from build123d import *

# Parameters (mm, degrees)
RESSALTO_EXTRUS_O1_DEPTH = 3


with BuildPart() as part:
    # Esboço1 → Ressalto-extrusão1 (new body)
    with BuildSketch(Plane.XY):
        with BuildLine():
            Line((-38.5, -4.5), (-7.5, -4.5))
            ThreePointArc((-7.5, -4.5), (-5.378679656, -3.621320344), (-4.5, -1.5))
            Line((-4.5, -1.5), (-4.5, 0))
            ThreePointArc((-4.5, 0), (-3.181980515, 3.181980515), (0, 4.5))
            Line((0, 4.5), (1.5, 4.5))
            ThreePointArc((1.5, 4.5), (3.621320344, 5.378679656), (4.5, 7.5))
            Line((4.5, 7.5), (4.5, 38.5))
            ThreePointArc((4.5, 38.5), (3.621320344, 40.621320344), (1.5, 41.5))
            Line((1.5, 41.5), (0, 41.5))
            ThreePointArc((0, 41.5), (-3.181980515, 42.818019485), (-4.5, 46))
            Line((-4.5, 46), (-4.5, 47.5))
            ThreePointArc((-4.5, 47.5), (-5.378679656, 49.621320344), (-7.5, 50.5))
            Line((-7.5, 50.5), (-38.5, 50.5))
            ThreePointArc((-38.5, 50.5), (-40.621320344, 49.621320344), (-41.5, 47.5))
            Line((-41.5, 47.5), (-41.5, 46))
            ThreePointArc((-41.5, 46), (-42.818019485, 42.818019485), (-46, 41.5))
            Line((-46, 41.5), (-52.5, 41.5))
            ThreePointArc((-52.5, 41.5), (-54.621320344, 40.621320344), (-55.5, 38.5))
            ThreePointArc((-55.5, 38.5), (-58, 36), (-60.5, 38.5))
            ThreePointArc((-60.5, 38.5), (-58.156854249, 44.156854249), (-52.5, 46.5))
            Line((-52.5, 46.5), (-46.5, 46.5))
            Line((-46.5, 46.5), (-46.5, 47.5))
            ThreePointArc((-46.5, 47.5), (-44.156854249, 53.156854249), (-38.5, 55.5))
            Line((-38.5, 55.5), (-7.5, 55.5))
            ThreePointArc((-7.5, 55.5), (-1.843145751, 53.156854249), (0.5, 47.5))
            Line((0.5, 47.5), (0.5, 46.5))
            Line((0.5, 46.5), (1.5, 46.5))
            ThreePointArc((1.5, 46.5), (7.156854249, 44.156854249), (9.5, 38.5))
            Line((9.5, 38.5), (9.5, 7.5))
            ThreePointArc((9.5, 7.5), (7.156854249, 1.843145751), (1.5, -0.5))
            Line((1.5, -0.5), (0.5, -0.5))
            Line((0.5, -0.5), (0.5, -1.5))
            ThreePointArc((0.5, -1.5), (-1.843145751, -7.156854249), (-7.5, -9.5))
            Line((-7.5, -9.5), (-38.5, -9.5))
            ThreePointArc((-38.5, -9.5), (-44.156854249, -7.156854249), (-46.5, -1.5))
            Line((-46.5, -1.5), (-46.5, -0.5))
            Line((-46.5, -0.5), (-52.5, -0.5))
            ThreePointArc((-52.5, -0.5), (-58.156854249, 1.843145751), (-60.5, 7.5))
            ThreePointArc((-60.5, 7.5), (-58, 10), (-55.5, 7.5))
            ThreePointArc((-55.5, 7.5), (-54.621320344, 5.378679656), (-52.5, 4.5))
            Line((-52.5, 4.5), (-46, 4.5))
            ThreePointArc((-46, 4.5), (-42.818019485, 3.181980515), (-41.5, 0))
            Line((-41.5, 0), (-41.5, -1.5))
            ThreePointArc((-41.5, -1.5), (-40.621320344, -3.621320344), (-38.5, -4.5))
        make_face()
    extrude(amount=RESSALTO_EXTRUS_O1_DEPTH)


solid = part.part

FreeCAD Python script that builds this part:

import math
import FreeCAD as App
import Part
import Sketcher
from FreeCAD import Vector

doc = App.newDocument("Part")
body = doc.addObject("PartDesign::Body", "Body")

# Sketch on XY plane
sketch1 = body.newObject("Sketcher::SketchObject", "Sketch")
sketch1.AttachmentSupport = (doc.getObject("XY_Plane"), [""])
sketch1.MapMode = "FlatFace"
sketch1.addGeometry([
    Part.LineSegment(Vector(-7.5, -4.5, 0), Vector(-38.5, -4.5, 0)),  # 0
    Part.ArcOfCircle(Part.Circle(Vector(-38.5, -1.5, 0), Vector(0, 0, 1), 3), math.radians(180), math.radians(270)),  # 1
    Part.LineSegment(Vector(-41.5, -1.5, 0), Vector(-41.5, 0, 0)),  # 2
    Part.ArcOfCircle(Part.Circle(Vector(-46, 0, 0), Vector(0, 0, 1), 4.5), math.radians(0), math.radians(90)),  # 3
    Part.LineSegment(Vector(-46, 4.5, 0), Vector(-52.5, 4.5, 0)),  # 4
    Part.ArcOfCircle(Part.Circle(Vector(-52.5, 7.5, 0), Vector(0, 0, 1), 3), math.radians(180), math.radians(270)),  # 5
    Part.ArcOfCircle(Part.Circle(Vector(-58, 7.5, 0), Vector(0, 0, 1), 2.5), math.radians(0), math.radians(180)),  # 6
    Part.ArcOfCircle(Part.Circle(Vector(-52.5, 7.5, 0), Vector(0, 0, 1), 8), math.radians(-180), math.radians(-90)),  # 7
    Part.LineSegment(Vector(-52.5, -0.5, 0), Vector(-46.5, -0.5, 0)),  # 8
    Part.LineSegment(Vector(-46.5, -0.5, 0), Vector(-46.5, -1.5, 0)),  # 9
    Part.ArcOfCircle(Part.Circle(Vector(-38.5, -1.5, 0), Vector(0, 0, 1), 8), math.radians(-180), math.radians(-90)),  # 10
    Part.LineSegment(Vector(-38.5, -9.5, 0), Vector(-7.5, -9.5, 0)),  # 11
    Part.ArcOfCircle(Part.Circle(Vector(-7.5, -1.5, 0), Vector(0, 0, 1), 8), math.radians(-90), math.radians(0)),  # 12
    Part.LineSegment(Vector(0.5, -1.5, 0), Vector(0.5, -0.5, 0)),  # 13
    Part.LineSegment(Vector(0.5, -0.5, 0), Vector(1.5, -0.5, 0)),  # 14
    Part.ArcOfCircle(Part.Circle(Vector(1.5, 7.5, 0), Vector(0, 0, 1), 8), math.radians(-90), math.radians(0)),  # 15
    Part.LineSegment(Vector(9.5, 7.5, 0), Vector(9.5, 38.5, 0)),  # 16
    Part.ArcOfCircle(Part.Circle(Vector(1.5, 38.5, 0), Vector(0, 0, 1), 8), math.radians(0), math.radians(90)),  # 17
    Part.LineSegment(Vector(1.5, 46.5, 0), Vector(0.5, 46.5, 0)),  # 18
    Part.LineSegment(Vector(0.5, 46.5, 0), Vector(0.5, 47.5, 0)),  # 19
    Part.ArcOfCircle(Part.Circle(Vector(-7.5, 47.5, 0), Vector(0, 0, 1), 8), math.radians(0), math.radians(90)),  # 20
    Part.LineSegment(Vector(-7.5, 55.5, 0), Vector(-38.5, 55.5, 0)),  # 21
    Part.ArcOfCircle(Part.Circle(Vector(-38.5, 47.5, 0), Vector(0, 0, 1), 8), math.radians(90), math.radians(180)),  # 22
    Part.LineSegment(Vector(-46.5, 47.5, 0), Vector(-46.5, 46.5, 0)),  # 23
    Part.LineSegment(Vector(-46.5, 46.5, 0), Vector(-52.5, 46.5, 0)),  # 24
    Part.ArcOfCircle(Part.Circle(Vector(-52.5, 38.5, 0), Vector(0, 0, 1), 8), math.radians(90), math.radians(180)),  # 25
    Part.ArcOfCircle(Part.Circle(Vector(-58, 38.5, 0), Vector(0, 0, 1), 2.5), math.radians(180), math.radians(360)),  # 26
    Part.ArcOfCircle(Part.Circle(Vector(-52.5, 38.5, 0), Vector(0, 0, 1), 3), math.radians(90), math.radians(180)),  # 27
    Part.LineSegment(Vector(-52.5, 41.5, 0), Vector(-46, 41.5, 0)),  # 28
    Part.ArcOfCircle(Part.Circle(Vector(-46, 46, 0), Vector(0, 0, 1), 4.5), math.radians(-90), math.radians(0)),  # 29
    Part.LineSegment(Vector(-41.5, 46, 0), Vector(-41.5, 47.5, 0)),  # 30
    Part.ArcOfCircle(Part.Circle(Vector(-38.5, 47.5, 0), Vector(0, 0, 1), 3), math.radians(90), math.radians(180)),  # 31
    Part.LineSegment(Vector(-38.5, 50.5, 0), Vector(-7.5, 50.5, 0)),  # 32
    Part.ArcOfCircle(Part.Circle(Vector(-7.5, 47.5, 0), Vector(0, 0, 1), 3), math.radians(0), math.radians(90)),  # 33
    Part.LineSegment(Vector(-4.5, 47.5, 0), Vector(-4.5, 46, 0)),  # 34
    Part.ArcOfCircle(Part.Circle(Vector(0, 46, 0), Vector(0, 0, 1), 4.5), math.radians(-180), math.radians(-90)),  # 35
    Part.LineSegment(Vector(0, 41.5, 0), Vector(1.5, 41.5, 0)),  # 36
    Part.ArcOfCircle(Part.Circle(Vector(1.5, 38.5, 0), Vector(0, 0, 1), 3), math.radians(0), math.radians(90)),  # 37
    Part.LineSegment(Vector(4.5, 38.5, 0), Vector(4.5, 7.5, 0)),  # 38
    Part.ArcOfCircle(Part.Circle(Vector(1.5, 7.5, 0), Vector(0, 0, 1), 3), math.radians(-90), math.radians(0)),  # 39
    Part.LineSegment(Vector(1.5, 4.5, 0), Vector(0, 4.5, 0)),  # 40
    Part.ArcOfCircle(Part.Circle(Vector(0, 0, 0), Vector(0, 0, 1), 4.5), math.radians(90), math.radians(180)),  # 41
    Part.LineSegment(Vector(-4.5, 0, 0), Vector(-4.5, -1.5, 0)),  # 42
    Part.ArcOfCircle(Part.Circle(Vector(-7.5, -1.5, 0), Vector(0, 0, 1), 3), math.radians(-90), math.radians(0)),  # 43
], False)
sketch1.addConstraint([
    Sketcher.Constraint("Tangent", 0, 2, 1, 2),
    Sketcher.Constraint("Tangent", 1, 1, 2, 1),
    Sketcher.Constraint("Tangent", 2, 2, 3, 1),
    Sketcher.Constraint("Tangent", 3, 2, 4, 1),
    Sketcher.Constraint("Tangent", 4, 2, 5, 2),
    Sketcher.Constraint("Tangent", 5, 1, 6, 1),
    Sketcher.Constraint("Tangent", 6, 2, 7, 1),
    Sketcher.Constraint("Tangent", 7, 2, 8, 1),
    Sketcher.Constraint("Coincident", 8, 2, 9, 1),
    Sketcher.Constraint("Tangent", 9, 2, 10, 1),
    Sketcher.Constraint("Tangent", 10, 2, 11, 1),
    Sketcher.Constraint("Tangent", 11, 2, 12, 1),
    Sketcher.Constraint("Tangent", 12, 2, 13, 1),
    Sketcher.Constraint("Coincident", 13, 2, 14, 1),
    Sketcher.Constraint("Tangent", 14, 2, 15, 1),
    Sketcher.Constraint("Tangent", 15, 2, 16, 1),
    Sketcher.Constraint("Tangent", 16, 2, 17, 1),
    Sketcher.Constraint("Tangent", 17, 2, 18, 1),
    Sketcher.Constraint("Coincident", 18, 2, 19, 1),
    Sketcher.Constraint("Tangent", 19, 2, 20, 1),
    Sketcher.Constraint("Tangent", 20, 2, 21, 1),
    Sketcher.Constraint("Tangent", 21, 2, 22, 1),
    Sketcher.Constraint("Tangent", 22, 2, 23, 1),
    Sketcher.Constraint("Coincident", 23, 2, 24, 1),
    Sketcher.Constraint("Tangent", 24, 2, 25, 1),
    Sketcher.Constraint("Tangent", 25, 2, 26, 1),
    Sketcher.Constraint("Tangent", 26, 2, 27, 2),
    Sketcher.Constraint("Tangent", 27, 1, 28, 1),
    Sketcher.Constraint("Tangent", 28, 2, 29, 1),
    Sketcher.Constraint("Tangent", 29, 2, 30, 1),
    Sketcher.Constraint("Tangent", 30, 2, 31, 2),
    Sketcher.Constraint("Tangent", 31, 1, 32, 1),
    Sketcher.Constraint("Tangent", 32, 2, 33, 2),
    Sketcher.Constraint("Tangent", 33, 1, 34, 1),
    Sketcher.Constraint("Tangent", 34, 2, 35, 1),
    Sketcher.Constraint("Tangent", 35, 2, 36, 1),
    Sketcher.Constraint("Tangent", 36, 2, 37, 2),
    Sketcher.Constraint("Tangent", 37, 1, 38, 1),
    Sketcher.Constraint("Tangent", 38, 2, 39, 2),
    Sketcher.Constraint("Tangent", 39, 1, 40, 1),
    Sketcher.Constraint("Tangent", 40, 2, 41, 1),
    Sketcher.Constraint("Tangent", 41, 2, 42, 1),
    Sketcher.Constraint("Tangent", 42, 2, 43, 2),
    Sketcher.Constraint("Tangent", 43, 1, 0, 1),
    Sketcher.Constraint("Horizontal", 0),
    Sketcher.Constraint("Vertical", 2),
    Sketcher.Constraint("Horizontal", 4),
    Sketcher.Constraint("Horizontal", 8),
    Sketcher.Constraint("Vertical", 9),
    Sketcher.Constraint("Horizontal", 11),
    Sketcher.Constraint("Vertical", 13),
    Sketcher.Constraint("Horizontal", 14),
    Sketcher.Constraint("Vertical", 16),
    Sketcher.Constraint("Horizontal", 18),
    Sketcher.Constraint("Vertical", 19),
    Sketcher.Constraint("Horizontal", 21),
    Sketcher.Constraint("Vertical", 23),
    Sketcher.Constraint("Horizontal", 24),
    Sketcher.Constraint("Horizontal", 28),
    Sketcher.Constraint("Vertical", 30),
    Sketcher.Constraint("Horizontal", 32),
    Sketcher.Constraint("Vertical", 34),
    Sketcher.Constraint("Horizontal", 36),
    Sketcher.Constraint("Vertical", 38),
    Sketcher.Constraint("Horizontal", 40),
    Sketcher.Constraint("Vertical", 42),
    Sketcher.Constraint("Coincident", 41, 3, -1, 1),
    Sketcher.Constraint("Coincident", 7, 3, 5, 3),
    Sketcher.Constraint("Coincident", 10, 3, 1, 3),
    Sketcher.Constraint("Coincident", 27, 3, 25, 3),
    Sketcher.Constraint("Coincident", 31, 3, 22, 3),
    Sketcher.Constraint("Coincident", 33, 3, 20, 3),
    Sketcher.Constraint("Coincident", 37, 3, 17, 3),
    Sketcher.Constraint("Coincident", 39, 3, 15, 3),
    Sketcher.Constraint("Coincident", 43, 3, 12, 3),
    Sketcher.Constraint("Equal", 1, 5),
    Sketcher.Constraint("Equal", 7, 10),
    Sketcher.Constraint("Equal", 10, 12),
    Sketcher.Constraint("Equal", 12, 15),
    Sketcher.Constraint("Equal", 15, 17),
    Sketcher.Constraint("Equal", 17, 20),
    Sketcher.Constraint("Equal", 20, 22),
    Sketcher.Constraint("Equal", 22, 25),
    Sketcher.Constraint("Equal", 6, 26),
    Sketcher.Constraint("Equal", 3, 29),
    Sketcher.Constraint("Equal", 27, 31),
    Sketcher.Constraint("Equal", 29, 35),
    Sketcher.Constraint("Equal", 33, 37),
    Sketcher.Constraint("Equal", 35, 41),
    Sketcher.Constraint("PointOnObject", 3, 3, -1),
    Sketcher.Constraint("PointOnObject", 35, 3, -2),
    Sketcher.Constraint("Horizontal", 5, 3, 6, 3),
    Sketcher.Constraint("Horizontal", 17, 3, 25, 3),
    Sketcher.Constraint("Horizontal", 25, 3, 26, 3),
    Sketcher.Constraint("Vertical", 10, 3, 22, 3),
    Sketcher.Constraint("Vertical", 7, 3, 25, 3),
    Sketcher.Constraint("Equal", 40, 2),
    Sketcher.Constraint("Equal", 32, 16),
    Sketcher.Constraint("Equal", 13, 19),
    Sketcher.Constraint("Radius", 1, 3.0),
    Sketcher.Constraint("Radius", 7, 8.0),
    Sketcher.Constraint("Radius", 3, 4.5),
    Sketcher.Constraint("DistanceX", 0, 2, 0, 1, 31.0),
    Sketcher.Constraint("DistanceX", 8, 1, 8, 2, 6.0),
    Sketcher.Constraint("DistanceX", 14, 1, 14, 2, 1.0),
])
pad1 = body.newObject("PartDesign::Pad", "Pad")
pad1.Profile = sketch1
pad1.Length = 3

doc.recompute()
